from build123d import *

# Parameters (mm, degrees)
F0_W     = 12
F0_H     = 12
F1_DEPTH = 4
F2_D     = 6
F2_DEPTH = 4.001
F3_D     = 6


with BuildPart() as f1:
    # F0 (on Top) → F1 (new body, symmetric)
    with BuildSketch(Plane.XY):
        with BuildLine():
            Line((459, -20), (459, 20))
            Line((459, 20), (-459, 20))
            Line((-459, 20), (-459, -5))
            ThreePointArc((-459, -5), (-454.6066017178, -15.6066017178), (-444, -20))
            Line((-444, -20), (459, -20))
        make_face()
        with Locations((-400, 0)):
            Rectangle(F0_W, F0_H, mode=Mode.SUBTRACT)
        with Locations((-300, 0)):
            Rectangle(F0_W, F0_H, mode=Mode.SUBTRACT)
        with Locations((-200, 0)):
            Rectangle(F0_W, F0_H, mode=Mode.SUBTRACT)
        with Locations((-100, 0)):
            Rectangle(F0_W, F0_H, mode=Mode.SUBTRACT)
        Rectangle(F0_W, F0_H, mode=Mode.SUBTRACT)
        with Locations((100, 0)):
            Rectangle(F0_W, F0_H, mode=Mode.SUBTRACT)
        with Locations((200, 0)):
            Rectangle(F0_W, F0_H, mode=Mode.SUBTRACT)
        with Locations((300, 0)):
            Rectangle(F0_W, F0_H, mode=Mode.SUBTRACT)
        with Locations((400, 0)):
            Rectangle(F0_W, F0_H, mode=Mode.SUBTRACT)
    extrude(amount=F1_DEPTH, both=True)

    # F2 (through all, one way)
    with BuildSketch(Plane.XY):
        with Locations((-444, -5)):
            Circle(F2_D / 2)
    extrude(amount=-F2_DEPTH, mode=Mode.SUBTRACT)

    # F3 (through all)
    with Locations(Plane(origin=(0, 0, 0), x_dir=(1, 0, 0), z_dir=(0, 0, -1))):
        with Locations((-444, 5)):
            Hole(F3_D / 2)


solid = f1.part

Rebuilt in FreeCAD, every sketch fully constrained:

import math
import FreeCAD as App
import Part
import Sketcher
from FreeCAD import Vector


def add_polygon(sketch, points):
    """Adds a closed chain of lines whose ends are joined by coincident constraints."""
    first, n = sketch.GeometryCount, len(points)
    for a, b in zip(points, points[1:] + points[:1]):
        sketch.addGeometry(Part.LineSegment(App.Vector(*a, 0), App.Vector(*b, 0)), False)
    for i in range(n):
        sketch.addConstraint(Sketcher.Constraint("Coincident", first + i, 2, first + (i + 1) % n, 1))

doc = App.newDocument("Part")
params = doc.addObject("Spreadsheet::Sheet", "Params")
for row, (alias, value) in enumerate([
    ("sketch1_radius", "15 mm"),
    ("sketch1_width", "918 mm"),
    ("sketch1_width2", "12 mm"),
    ("sketch1_height", "40 mm"),
    ("pad1_length", "8 mm"),
    ("sketch2_diameter", "6 mm"),
    ("sketch3_diameter", "6 mm"),
    ("hole_diameter", "6 mm"),
], start=1):
    params.set(f"A{row}", alias)
    params.set(f"B{row}", "=" + value)
    params.setAlias(f"B{row}", alias)

body = doc.addObject("PartDesign::Body", "Body")

sketch1 = body.newObject("Sketcher::SketchObject", "Sketch")
sketch1.AttachmentSupport = (doc.getObject("XY_Plane"), [""])
sketch1.MapMode = "FlatFace"
sketch1.addGeometry(Part.LineSegment(Vector(459, -20, 0), Vector(459, 20, 0)), False)
sketch1.addGeometry(Part.LineSegment(Vector(459, 20, 0), Vector(-459, 20, 0)), False)
sketch1.addGeometry(Part.LineSegment(Vector(-459, 20, 0), Vector(-459, -5, 0)), False)
sketch1.addGeometry(Part.ArcOfCircle(Part.Circle(Vector(-444, -5, 0), Vector(0, 0, 1), 15), math.radians(180), math.radians(270)), False)
sketch1.addGeometry(Part.LineSegment(Vector(-444, -20, 0), Vector(459, -20, 0)), False)
add_polygon(sketch1, [(-394, -6), (-406, -6), (-406, 6), (-394, 6)])
add_polygon(sketch1, [(-294, -6), (-306, -6), (-306, 6), (-294, 6)])
add_polygon(sketch1, [(-194, -6), (-206, -6), (-206, 6), (-194, 6)])
add_polygon(sketch1, [(-94, -6), (-106, -6), (-106, 6), (-94, 6)])
add_polygon(sketch1, [(6, -6), (-6, -6), (-6, 6), (6, 6)])
add_polygon(sketch1, [(106, -6), (94, -6), (94, 6), (106, 6)])
add_polygon(sketch1, [(206, -6), (194, -6), (194, 6), (206, 6)])
add_polygon(sketch1, [(306, -6), (294, -6), (294, 6), (306, 6)])
add_polygon(sketch1, [(406, -6), (394, -6), (394, 6), (406, 6)])
sketch1.addConstraint([
    Sketcher.Constraint("Coincident", 0, 2, 1, 1),
    Sketcher.Constraint("Coincident", 1, 2, 2, 1),
    Sketcher.Constraint("Tangent", 2, 2, 3, 1),
    Sketcher.Constraint("Tangent", 3, 2, 4, 1),
    Sketcher.Constraint("Coincident", 4, 2, 0, 1),
    Sketcher.Constraint("Vertical", 0),
    Sketcher.Constraint("Horizontal", 1),
    Sketcher.Constraint("Vertical", 2),
    Sketcher.Constraint("Horizontal", 4),
    Sketcher.Constraint("Horizontal", 5),
    Sketcher.Constraint("Vertical", 6),
    Sketcher.Constraint("Horizontal", 7),
    Sketcher.Constraint("Vertical", 8),
    Sketcher.Constraint("Horizontal", 9),
    Sketcher.Constraint("Vertical", 10),
    Sketcher.Constraint("Horizontal", 11),
    Sketcher.Constraint("Vertical", 12),
    Sketcher.Constraint("Horizontal", 13),
    Sketcher.Constraint("Vertical", 14),
    Sketcher.Constraint("Horizontal", 15),
    Sketcher.Constraint("Vertical", 16),
    Sketcher.Constraint("Horizontal", 17),
    Sketcher.Constraint("Vertical", 18),
    Sketcher.Constraint("Horizontal", 19),
    Sketcher.Constraint("Vertical", 20),
    Sketcher.Constraint("Horizontal", 21),
    Sketcher.Constraint("Vertical", 22),
    Sketcher.Constraint("Horizontal", 23),
    Sketcher.Constraint("Vertical", 24),
    Sketcher.Constraint("Horizontal", 25),
    Sketcher.Constraint("Vertical", 26),
    Sketcher.Constraint("Horizontal", 27),
    Sketcher.Constraint("Vertical", 28),
    Sketcher.Constraint("Horizontal", 29),
    Sketcher.Constraint("Vertical", 30),
    Sketcher.Constraint("Horizontal", 31),
    Sketcher.Constraint("Vertical", 32),
    Sketcher.Constraint("Horizontal", 33),
    Sketcher.Constraint("Vertical", 34),
    Sketcher.Constraint("Horizontal", 35),
    Sketcher.Constraint("Vertical", 36),
    Sketcher.Constraint("Horizontal", 37),
    Sketcher.Constraint("Vertical", 38),
    Sketcher.Constraint("Horizontal", 39),
    Sketcher.Constraint("Vertical", 40),
    Sketcher.Constraint("Symmetric", 1, 2, 4, 2, -1, 1),
    Sketcher.Constraint("Symmetric", 21, 2, 23, 2, -1, 1),
    Sketcher.Constraint("Symmetric", 19, 2, 25, 2, -1, 1),
    Sketcher.Constraint("Symmetric", 17, 2, 27, 2, -1, 1),
    Sketcher.Constraint("Symmetric", 15, 2, 29, 2, -1, 1),
    Sketcher.Constraint("Symmetric", 13, 2, 31, 2, -1, 1),
    Sketcher.Constraint("Symmetric", 11, 2, 33, 2, -1, 1),
    Sketcher.Constraint("Symmetric", 9, 2, 35, 2, -1, 1),
    Sketcher.Constraint("Symmetric", 7, 2, 37, 2, -1, 1),
    Sketcher.Constraint("Symmetric", 5, 2, 39, 2, -1, 1),
    Sketcher.Constraint("Horizontal", 8, 2, 9, 2),
    Sketcher.Constraint("Horizontal", 7, 2, 10, 2),
    Sketcher.Constraint("Horizontal", 12, 2, 13, 2),
    Sketcher.Constraint("Horizontal", 11, 2, 14, 2),
    Sketcher.Constraint("Horizontal", 16, 2, 17, 2),
    Sketcher.Constraint("Horizontal", 15, 2, 18, 2),
    Sketcher.Constraint("Horizontal", 20, 2, 21, 2),
    Sketcher.Constraint("Horizontal", 19, 2, 22, 2),
    Sketcher.Constraint("Equal", 7, 9),
    Sketcher.Constraint("Equal", 11, 13),
    Sketcher.Constraint("Equal", 15, 17),
    Sketcher.Constraint("Equal", 19, 21),
    Sketcher.Constraint("Equal", 39, 6),
    Sketcher.Constraint("Radius", 3, 15.0),
    Sketcher.Constraint("DistanceX", 1, 2, 1, 1, 918.0),
    Sketcher.Constraint("DistanceX", 5, 2, 5, 1, 12.0),
    Sketcher.Constraint("DistanceY", 0, 1, 0, 2, 40.0),
    Sketcher.Constraint("DistanceX", 5, 2, -1, 1, 406.0),
    Sketcher.Constraint("DistanceX", 9, 2, -1, 1, 306.0),
    Sketcher.Constraint("DistanceX", 13, 2, -1, 1, 206.0),
    Sketcher.Constraint("DistanceX", 17, 2, -1, 1, 106.0),
])
sketch1.setExpression("Constraints[104]", "Params.sketch1_radius")
sketch1.setExpression("Constraints[105]", "Params.sketch1_width")
sketch1.setExpression("Constraints[106]", "Params.sketch1_width2")
sketch1.setExpression("Constraints[107]", "Params.sketch1_height")
pad1 = body.newObject("PartDesign::Pad", "Pad")
pad1.Profile = sketch1
pad1.setExpression("Length", "Params.pad1_length")
pad1.Midplane = True

sketch2 = body.newObject("Sketcher::SketchObject", "Sketch001")
sketch2.AttachmentSupport = (doc.getObject("XY_Plane"), [""])
sketch2.MapMode = "FlatFace"
sketch2.addGeometry(Part.Circle(Vector(-444, -5, 0), Vector(0, 0, 1), 3), False)
sketch2.addConstraint([
    Sketcher.Constraint("Diameter", 0, 6.0),
    Sketcher.Constraint("DistanceX", 0, 3, -1, 1, 444.0),
    Sketcher.Constraint("DistanceY", 0, 3, -1, 1, 5.0),
])
sketch2.setExpression("Constraints[0]", "Params.sketch2_diameter")
pocket1 = body.newObject("PartDesign::Pocket", "Pocket")
pocket1.Profile = sketch2
pocket1.Type = "ThroughAll"

sketch3 = body.newObject("Sketcher::SketchObject", "Sketch002")
sketch3.AttachmentSupport = (doc.getObject("XY_Plane"), [""])
sketch3.MapMode = "FlatFace"
sketch3.addGeometry(Part.Circle(Vector(-444, -5, 0), Vector(0, 0, 1), 3), False)
sketch3.addConstraint([
    Sketcher.Constraint("Diameter", 0, 6.0),
    Sketcher.Constraint("DistanceX", 0, 3, -1, 1, 444.0),
    Sketcher.Constraint("DistanceY", 0, 3, -1, 1, 5.0),
])
sketch3.setExpression("Constraints[0]", "Params.sketch3_diameter")
doc.recompute()
hole = body.newObject("PartDesign::Hole", "Hole")
hole.Profile = sketch3
hole.ThreadType = "None"
hole.setExpression("Diameter", "Params.hole_diameter")
hole.DepthType = "ThroughAll"
hole.Reversed = True

doc.recompute()
